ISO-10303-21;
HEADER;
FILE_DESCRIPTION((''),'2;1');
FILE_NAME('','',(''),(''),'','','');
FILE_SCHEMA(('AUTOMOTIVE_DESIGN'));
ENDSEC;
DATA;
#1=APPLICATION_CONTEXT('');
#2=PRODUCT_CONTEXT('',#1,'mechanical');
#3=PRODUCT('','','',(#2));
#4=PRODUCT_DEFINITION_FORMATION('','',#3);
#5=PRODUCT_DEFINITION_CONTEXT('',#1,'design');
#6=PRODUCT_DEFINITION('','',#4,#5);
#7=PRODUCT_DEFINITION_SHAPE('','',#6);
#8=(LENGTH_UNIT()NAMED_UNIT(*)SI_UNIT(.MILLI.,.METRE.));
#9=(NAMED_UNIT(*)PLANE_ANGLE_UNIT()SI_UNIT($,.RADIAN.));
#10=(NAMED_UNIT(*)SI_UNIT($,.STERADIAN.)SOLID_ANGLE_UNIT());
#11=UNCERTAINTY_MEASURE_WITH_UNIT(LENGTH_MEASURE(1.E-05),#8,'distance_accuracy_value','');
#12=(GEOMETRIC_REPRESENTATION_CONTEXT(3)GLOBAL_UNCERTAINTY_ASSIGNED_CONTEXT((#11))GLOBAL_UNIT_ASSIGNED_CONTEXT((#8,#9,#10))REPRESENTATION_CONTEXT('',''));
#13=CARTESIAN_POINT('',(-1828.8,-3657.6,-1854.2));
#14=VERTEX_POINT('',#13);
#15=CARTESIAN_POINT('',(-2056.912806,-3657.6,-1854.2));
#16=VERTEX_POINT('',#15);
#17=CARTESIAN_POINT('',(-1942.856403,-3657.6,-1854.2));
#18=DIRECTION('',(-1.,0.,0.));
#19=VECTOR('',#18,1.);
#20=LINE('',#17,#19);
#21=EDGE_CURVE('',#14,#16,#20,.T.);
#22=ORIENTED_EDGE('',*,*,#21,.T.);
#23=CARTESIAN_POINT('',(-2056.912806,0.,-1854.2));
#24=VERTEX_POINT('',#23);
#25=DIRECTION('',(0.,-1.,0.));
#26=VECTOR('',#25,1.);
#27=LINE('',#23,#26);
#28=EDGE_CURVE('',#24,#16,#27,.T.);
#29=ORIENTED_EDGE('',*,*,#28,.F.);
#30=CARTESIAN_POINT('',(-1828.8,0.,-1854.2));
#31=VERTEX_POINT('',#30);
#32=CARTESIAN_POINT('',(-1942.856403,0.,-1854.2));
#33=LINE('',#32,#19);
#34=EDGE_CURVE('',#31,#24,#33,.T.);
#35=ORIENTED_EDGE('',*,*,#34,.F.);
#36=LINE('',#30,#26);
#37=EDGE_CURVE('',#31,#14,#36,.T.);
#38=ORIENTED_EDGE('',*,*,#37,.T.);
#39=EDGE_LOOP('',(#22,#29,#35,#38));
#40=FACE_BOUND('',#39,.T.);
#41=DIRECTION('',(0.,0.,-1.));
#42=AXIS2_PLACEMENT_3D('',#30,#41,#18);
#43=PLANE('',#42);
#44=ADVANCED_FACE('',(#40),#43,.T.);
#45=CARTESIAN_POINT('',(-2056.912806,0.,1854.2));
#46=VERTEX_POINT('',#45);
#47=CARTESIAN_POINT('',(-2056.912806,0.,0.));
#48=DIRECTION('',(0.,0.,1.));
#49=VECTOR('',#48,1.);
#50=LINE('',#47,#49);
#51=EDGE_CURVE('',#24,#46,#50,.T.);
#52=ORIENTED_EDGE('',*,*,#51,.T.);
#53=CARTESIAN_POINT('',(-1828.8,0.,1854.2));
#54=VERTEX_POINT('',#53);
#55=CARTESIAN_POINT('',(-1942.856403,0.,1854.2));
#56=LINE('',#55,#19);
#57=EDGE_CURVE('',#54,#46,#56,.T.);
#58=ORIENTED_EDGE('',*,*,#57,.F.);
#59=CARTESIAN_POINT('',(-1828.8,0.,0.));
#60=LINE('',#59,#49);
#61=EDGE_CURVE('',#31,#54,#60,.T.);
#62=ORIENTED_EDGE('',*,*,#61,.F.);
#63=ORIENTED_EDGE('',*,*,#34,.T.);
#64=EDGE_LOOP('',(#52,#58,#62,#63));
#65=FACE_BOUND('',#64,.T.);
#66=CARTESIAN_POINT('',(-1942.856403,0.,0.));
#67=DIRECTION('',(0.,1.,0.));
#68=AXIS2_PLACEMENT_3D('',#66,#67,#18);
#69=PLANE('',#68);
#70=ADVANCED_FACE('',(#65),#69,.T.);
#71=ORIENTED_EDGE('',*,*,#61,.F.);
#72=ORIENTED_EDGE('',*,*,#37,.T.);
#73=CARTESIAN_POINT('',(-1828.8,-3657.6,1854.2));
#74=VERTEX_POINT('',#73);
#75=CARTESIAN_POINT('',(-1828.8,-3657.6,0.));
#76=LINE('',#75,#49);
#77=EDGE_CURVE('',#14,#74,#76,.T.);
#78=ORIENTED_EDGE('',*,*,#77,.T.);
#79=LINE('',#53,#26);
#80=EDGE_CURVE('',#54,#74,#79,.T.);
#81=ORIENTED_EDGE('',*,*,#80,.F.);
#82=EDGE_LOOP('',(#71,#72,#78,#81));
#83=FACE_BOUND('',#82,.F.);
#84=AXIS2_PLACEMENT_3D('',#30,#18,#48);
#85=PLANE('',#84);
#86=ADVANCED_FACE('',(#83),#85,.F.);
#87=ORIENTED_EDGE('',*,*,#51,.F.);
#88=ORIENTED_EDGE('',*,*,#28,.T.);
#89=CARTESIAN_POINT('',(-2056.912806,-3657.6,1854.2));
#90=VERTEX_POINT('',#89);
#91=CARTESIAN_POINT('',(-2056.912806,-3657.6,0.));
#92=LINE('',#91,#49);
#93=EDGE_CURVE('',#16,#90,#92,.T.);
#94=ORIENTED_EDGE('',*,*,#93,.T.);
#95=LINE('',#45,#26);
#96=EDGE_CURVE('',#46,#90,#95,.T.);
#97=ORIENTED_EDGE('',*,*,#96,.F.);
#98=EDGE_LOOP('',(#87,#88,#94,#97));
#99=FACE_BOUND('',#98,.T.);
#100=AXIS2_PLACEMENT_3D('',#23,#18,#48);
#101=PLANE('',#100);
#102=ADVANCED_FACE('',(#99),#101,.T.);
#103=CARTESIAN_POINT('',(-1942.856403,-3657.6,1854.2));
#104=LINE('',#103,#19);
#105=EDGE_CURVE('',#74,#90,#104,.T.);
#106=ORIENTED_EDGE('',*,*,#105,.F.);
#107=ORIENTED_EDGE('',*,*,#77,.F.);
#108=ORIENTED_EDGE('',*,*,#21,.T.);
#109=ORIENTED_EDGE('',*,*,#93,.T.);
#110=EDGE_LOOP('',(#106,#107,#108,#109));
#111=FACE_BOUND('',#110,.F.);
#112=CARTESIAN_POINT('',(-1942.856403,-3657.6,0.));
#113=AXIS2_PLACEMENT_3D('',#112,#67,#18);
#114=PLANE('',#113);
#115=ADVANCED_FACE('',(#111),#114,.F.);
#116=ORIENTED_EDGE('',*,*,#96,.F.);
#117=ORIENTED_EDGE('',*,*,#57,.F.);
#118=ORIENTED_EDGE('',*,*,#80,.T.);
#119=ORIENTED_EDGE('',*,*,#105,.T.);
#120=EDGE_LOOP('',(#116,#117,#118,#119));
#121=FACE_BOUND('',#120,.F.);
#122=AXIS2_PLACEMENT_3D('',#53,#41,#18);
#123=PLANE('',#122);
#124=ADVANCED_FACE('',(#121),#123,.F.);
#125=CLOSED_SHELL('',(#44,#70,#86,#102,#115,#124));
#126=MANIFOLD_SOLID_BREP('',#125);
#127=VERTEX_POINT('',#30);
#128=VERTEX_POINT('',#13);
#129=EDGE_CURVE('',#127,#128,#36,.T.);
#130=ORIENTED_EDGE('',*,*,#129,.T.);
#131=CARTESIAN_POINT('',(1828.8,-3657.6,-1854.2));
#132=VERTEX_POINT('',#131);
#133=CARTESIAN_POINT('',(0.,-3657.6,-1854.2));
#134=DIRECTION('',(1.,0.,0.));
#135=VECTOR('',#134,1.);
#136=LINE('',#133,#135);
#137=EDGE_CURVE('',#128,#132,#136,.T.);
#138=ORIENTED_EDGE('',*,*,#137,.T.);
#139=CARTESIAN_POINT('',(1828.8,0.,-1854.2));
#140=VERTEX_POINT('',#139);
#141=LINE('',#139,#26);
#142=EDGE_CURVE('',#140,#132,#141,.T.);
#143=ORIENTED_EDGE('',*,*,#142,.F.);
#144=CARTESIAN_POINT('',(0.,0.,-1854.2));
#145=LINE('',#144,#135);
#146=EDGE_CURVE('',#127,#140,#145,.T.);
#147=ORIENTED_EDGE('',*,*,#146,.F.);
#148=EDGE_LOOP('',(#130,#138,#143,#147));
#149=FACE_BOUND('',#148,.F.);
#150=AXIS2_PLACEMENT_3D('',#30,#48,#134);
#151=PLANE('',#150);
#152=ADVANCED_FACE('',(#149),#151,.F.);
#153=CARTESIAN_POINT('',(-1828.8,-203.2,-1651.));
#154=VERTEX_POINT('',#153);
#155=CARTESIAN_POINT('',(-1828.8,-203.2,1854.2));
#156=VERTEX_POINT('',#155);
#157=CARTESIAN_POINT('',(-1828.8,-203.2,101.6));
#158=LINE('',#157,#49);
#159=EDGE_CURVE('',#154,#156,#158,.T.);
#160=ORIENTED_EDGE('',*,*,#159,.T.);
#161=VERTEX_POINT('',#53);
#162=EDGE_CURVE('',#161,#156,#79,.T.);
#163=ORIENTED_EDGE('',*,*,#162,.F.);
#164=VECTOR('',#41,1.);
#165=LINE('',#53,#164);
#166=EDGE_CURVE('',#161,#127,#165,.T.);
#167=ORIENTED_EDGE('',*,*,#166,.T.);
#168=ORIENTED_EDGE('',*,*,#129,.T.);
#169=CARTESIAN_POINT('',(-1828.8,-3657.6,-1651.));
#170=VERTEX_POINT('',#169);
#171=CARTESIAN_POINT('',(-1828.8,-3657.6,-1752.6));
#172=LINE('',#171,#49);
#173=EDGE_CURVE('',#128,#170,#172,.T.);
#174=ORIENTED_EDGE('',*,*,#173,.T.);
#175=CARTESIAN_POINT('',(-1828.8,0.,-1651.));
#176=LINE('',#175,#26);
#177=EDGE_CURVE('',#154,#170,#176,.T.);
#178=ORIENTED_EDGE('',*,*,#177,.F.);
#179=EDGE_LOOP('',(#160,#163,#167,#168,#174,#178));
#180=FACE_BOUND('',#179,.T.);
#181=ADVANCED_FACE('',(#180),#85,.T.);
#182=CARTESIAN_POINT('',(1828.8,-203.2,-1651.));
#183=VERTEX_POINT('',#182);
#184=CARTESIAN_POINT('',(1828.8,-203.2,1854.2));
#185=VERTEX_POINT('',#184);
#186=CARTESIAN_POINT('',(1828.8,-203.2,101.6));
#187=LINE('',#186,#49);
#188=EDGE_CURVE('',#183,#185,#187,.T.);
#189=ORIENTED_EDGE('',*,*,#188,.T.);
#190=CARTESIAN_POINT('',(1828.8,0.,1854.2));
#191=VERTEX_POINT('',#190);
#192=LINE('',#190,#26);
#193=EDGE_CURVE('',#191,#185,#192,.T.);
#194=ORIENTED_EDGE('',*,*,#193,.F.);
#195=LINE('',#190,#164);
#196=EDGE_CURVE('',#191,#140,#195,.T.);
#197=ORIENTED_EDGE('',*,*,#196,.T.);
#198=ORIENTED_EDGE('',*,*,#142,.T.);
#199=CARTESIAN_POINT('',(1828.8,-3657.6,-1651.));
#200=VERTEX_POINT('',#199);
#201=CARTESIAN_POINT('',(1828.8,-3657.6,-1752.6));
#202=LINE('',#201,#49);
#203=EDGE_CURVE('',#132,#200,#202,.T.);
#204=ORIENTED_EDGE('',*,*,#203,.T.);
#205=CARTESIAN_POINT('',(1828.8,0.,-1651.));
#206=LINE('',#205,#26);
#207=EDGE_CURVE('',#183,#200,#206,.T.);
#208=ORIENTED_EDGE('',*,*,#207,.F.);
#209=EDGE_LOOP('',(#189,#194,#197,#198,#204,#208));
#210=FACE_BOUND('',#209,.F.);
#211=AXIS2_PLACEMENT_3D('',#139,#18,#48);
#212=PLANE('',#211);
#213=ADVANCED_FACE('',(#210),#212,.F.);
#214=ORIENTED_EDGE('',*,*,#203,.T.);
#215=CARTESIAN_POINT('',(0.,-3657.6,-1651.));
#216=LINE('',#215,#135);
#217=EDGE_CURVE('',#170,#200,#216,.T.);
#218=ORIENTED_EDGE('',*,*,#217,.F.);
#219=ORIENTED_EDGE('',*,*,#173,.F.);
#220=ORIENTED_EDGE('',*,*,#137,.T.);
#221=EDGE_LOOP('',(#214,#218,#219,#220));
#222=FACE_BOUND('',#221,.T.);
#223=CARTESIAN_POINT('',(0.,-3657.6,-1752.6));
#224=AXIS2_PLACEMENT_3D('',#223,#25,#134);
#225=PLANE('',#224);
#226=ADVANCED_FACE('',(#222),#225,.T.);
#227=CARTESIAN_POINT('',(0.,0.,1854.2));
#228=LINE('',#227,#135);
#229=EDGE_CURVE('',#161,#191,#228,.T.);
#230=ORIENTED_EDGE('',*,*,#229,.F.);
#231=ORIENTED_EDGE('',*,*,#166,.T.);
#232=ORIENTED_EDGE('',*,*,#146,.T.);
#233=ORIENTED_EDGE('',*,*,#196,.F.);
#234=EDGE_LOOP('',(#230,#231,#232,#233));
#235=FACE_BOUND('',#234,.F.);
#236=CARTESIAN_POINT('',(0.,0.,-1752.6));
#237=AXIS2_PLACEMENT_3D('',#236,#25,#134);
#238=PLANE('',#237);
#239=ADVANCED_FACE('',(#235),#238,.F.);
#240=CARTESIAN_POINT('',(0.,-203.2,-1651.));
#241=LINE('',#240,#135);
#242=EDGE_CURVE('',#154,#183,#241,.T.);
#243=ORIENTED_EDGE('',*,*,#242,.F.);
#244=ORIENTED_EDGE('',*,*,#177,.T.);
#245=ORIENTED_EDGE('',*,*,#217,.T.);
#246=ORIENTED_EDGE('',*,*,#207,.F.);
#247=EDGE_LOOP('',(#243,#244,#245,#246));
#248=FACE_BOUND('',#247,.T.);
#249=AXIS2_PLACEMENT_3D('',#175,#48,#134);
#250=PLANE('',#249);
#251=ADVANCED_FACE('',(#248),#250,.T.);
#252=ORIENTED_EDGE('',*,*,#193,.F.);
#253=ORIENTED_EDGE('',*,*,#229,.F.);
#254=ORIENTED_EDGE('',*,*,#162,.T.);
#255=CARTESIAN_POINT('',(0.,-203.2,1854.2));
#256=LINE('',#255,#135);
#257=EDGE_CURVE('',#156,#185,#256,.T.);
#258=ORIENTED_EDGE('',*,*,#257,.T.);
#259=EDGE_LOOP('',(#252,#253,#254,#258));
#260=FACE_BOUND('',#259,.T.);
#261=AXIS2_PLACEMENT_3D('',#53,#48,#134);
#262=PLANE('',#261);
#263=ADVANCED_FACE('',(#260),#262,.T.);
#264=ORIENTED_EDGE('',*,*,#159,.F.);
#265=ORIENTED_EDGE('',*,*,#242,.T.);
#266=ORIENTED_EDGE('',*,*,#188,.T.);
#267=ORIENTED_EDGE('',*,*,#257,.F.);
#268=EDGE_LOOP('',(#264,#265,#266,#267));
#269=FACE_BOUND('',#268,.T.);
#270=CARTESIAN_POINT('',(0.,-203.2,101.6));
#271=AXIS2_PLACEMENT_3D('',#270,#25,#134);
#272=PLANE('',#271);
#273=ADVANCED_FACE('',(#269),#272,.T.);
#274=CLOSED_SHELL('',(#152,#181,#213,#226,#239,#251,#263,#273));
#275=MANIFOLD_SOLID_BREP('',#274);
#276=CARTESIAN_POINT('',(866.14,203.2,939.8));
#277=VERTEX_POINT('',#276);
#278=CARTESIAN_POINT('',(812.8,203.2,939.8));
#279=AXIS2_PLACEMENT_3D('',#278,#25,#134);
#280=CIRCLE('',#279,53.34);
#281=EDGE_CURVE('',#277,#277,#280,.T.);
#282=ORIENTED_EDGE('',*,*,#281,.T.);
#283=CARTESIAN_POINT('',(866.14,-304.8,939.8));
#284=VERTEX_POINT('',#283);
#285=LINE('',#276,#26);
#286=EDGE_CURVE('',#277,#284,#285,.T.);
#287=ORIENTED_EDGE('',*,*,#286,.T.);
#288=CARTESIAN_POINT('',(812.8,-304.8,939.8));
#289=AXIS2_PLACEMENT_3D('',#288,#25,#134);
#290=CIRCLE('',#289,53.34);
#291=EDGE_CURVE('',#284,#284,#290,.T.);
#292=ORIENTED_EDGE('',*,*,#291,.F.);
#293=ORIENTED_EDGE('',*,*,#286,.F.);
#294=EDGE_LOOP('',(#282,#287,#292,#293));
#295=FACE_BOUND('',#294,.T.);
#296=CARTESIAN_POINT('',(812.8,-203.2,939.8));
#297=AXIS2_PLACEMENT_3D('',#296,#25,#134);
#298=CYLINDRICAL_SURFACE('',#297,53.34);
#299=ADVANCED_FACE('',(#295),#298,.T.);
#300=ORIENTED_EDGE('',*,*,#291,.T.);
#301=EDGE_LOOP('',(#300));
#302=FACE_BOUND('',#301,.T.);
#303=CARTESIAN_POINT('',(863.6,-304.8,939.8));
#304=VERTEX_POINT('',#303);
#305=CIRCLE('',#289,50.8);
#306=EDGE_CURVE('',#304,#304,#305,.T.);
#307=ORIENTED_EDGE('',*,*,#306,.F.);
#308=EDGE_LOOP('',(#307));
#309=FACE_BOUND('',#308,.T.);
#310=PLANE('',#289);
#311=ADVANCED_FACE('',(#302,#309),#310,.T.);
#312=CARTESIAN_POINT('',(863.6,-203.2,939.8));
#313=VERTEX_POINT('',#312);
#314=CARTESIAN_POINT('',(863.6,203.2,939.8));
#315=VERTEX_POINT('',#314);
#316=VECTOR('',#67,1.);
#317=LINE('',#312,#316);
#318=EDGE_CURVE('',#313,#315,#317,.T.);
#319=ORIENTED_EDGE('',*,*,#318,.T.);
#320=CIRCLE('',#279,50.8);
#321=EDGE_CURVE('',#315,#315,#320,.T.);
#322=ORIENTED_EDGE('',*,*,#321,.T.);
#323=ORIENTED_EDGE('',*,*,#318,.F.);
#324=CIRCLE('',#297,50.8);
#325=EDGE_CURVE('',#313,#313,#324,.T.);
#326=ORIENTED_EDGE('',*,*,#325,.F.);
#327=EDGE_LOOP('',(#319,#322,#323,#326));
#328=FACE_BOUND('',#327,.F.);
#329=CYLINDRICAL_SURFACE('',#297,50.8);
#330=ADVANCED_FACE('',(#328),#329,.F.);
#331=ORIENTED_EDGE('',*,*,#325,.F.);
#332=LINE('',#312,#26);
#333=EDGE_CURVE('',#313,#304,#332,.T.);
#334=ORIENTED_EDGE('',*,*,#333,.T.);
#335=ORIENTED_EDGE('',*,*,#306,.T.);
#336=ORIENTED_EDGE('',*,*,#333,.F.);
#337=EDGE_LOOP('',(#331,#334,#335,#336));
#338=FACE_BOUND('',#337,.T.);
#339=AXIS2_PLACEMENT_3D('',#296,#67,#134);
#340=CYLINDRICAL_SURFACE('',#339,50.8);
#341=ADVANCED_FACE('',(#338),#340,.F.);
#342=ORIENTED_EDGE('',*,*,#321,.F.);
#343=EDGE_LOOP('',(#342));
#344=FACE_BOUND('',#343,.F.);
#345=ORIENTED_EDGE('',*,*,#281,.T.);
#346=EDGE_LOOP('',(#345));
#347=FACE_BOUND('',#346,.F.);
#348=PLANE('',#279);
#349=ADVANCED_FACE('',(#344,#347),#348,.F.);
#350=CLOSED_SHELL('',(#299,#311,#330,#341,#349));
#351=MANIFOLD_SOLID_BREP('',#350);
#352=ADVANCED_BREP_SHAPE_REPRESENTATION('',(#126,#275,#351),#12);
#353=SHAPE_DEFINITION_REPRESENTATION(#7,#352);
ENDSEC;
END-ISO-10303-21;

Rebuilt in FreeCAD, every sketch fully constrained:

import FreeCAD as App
import Part
import Sketcher
from FreeCAD import Vector
Q = App.Units.Quantity


def add_polygon(sketch, points):
    """Adds a closed chain of lines whose ends are joined by coincident constraints."""
    first, n = sketch.GeometryCount, len(points)
    for a, b in zip(points, points[1:] + points[:1]):
        sketch.addGeometry(Part.LineSegment(App.Vector(*a, 0), App.Vector(*b, 0)), False)
    for i in range(n):
        sketch.addConstraint(Sketcher.Constraint("Coincident", first + i, 2, first + (i + 1) % n, 1))

doc = App.newDocument("Part")
body = doc.addObject("PartDesign::Body", "Body")

# Sketch on XZ plane
sketch1 = doc.addObject("Sketcher::SketchObject", "Sketch")
body.addObject(sketch1)
sketch1.AttachmentSupport = (doc.XZ_Plane, [""])
sketch1.MapMode = "FlatFace"
add_polygon(sketch1, [(-1828.8, 1854.2), (-1828.8, -1651), (1828.8, -1651), (1828.8, 1854.2)])  # lines 0-3
sketch1.addConstraint([
    Sketcher.Constraint("Vertical", 0),
    Sketcher.Constraint("Horizontal", 1),
    Sketcher.Constraint("Vertical", 2),
    Sketcher.Constraint("Horizontal", 3),
    Sketcher.Constraint("DistanceX", 1, 1, 1, 2, Q("144 in")),
    Sketcher.Constraint("DistanceY", 0, 2, 0, 1, Q("138 in")),
    Sketcher.Constraint("DistanceX", 0, 2, -1, 1, Q("72 in")),
    Sketcher.Constraint("DistanceY", 0, 2, -1, 1, Q("65 in")),
])
pad1 = doc.addObject("PartDesign::Pad", "Pad")
body.addObject(pad1)
pad1.Profile = sketch1
pad1.Length = Q("8 in")

# Sketch on XZ plane
sketch2 = doc.addObject("Sketcher::SketchObject", "Sketch001")
body.addObject(sketch2)
sketch2.AttachmentSupport = (doc.XZ_Plane, [""])
sketch2.MapMode = "FlatFace"
add_polygon(sketch2, [(-1828.8, -1651), (-1828.8, -1854.2), (1828.8, -1854.2), (1828.8, -1651)])  # lines 0-3
sketch2.addConstraint([
    Sketcher.Constraint("Vertical", 0),
    Sketcher.Constraint("Horizontal", 1),
    Sketcher.Constraint("Vertical", 2),
    Sketcher.Constraint("Horizontal", 3),
    Sketcher.Constraint("DistanceX", 1, 1, 1, 2, Q("144 in")),
    Sketcher.Constraint("DistanceY", 0, 2, 0, 1, Q("8 in")),
    Sketcher.Constraint("DistanceX", 0, 2, -1, 1, Q("72 in")),
    Sketcher.Constraint("DistanceY", 0, 2, -1, 1, Q("73 in")),
])
pad2 = doc.addObject("PartDesign::Pad", "Pad001")
body.addObject(pad2)
pad2.Profile = sketch2
pad2.Length = Q("144 in")
body2 = doc.addObject("PartDesign::Body", "Body001")

# Sketch on XZ plane
sketch3 = doc.addObject("Sketcher::SketchObject", "Sketch002")
body2.addObject(sketch3)
sketch3.AttachmentSupport = (doc.getObject("XZ_Plane001"), [""])
sketch3.MapMode = "FlatFace"
add_polygon(sketch3, [(-1828.8, 1854.2), (-1828.8, -1854.2), (-2056.912806, -1854.2), (-2056.912806, 1854.2)])  # lines 0-3
sketch3.addConstraint([
    Sketcher.Constraint("Vertical", 0),
    Sketcher.Constraint("Horizontal", 1),
    Sketcher.Constraint("Vertical", 2),
    Sketcher.Constraint("Horizontal", 3),
    Sketcher.Constraint("DistanceY", 0, 2, 0, 1, Q("146 in")),
    Sketcher.Constraint("DistanceX", 0, 2, -1, 1, Q("72 in")),
    Sketcher.Constraint("DistanceY", 0, 2, -1, 1, Q("73 in")),
    Sketcher.Constraint("DistanceX", 1, 2, 1, 1, 228.112806),
])
pad3 = doc.addObject("PartDesign::Pad", "Pad002")
body2.addObject(pad3)
pad3.Profile = sketch3
pad3.Length = Q("144 in")
body3 = doc.addObject("PartDesign::Body", "Body002")

# Sketch on XZ plane
sketch4 = doc.addObject("Sketcher::SketchObject", "Sketch003")
body3.addObject(sketch4)
sketch4.AttachmentSupport = (doc.getObject("XZ_Plane002"), [""])
sketch4.MapMode = "FlatFace"
sketch4.AttachmentOffset = App.Placement(Vector(0, 0, 8 * 25.4), App.Rotation())
sketch4.addGeometry([
    Part.Circle(Vector(812.8, 939.8, 0), Vector(0, 0, 1), 53.34),
    Part.Circle(Vector(812.8, 939.8, 0), Vector(0, 0, 1), 50.8),
], False)
sketch4.addConstraint([
    Sketcher.Constraint("Coincident", 1, 3, 0, 3),
    Sketcher.Constraint("Diameter", 1, Q("4 in")),
    Sketcher.Constraint("Diameter", 0, Q("4.2 in")),
    Sketcher.Constraint("DistanceX", -1, 1, 0, 3, Q("32 in")),
    Sketcher.Constraint("DistanceY", -1, 1, 0, 3, Q("37 in")),
])
pad4 = doc.addObject("PartDesign::Pad", "Pad003")
body3.addObject(pad4)
pad4.Profile = sketch4
pad4.Length = Q("4 in")

# Sketch on XZ plane
sketch5 = doc.addObject("Sketcher::SketchObject", "Sketch004")
body3.addObject(sketch5)
sketch5.AttachmentSupport = (doc.getObject("XZ_Plane002"), [""])
sketch5.MapMode = "FlatFace"
sketch5.AttachmentOffset = App.Placement(Vector(0, 0, 8 * 25.4), App.Rotation())
sketch5.addGeometry([
    Part.Circle(Vector(812.8, 939.8, 0), Vector(0, 0, 1), 53.34),
    Part.Circle(Vector(812.8, 939.8, 0), Vector(0, 0, 1), 50.8),
], False)
sketch5.addConstraint([
    Sketcher.Constraint("Coincident", 1, 3, 0, 3),
    Sketcher.Constraint("Diameter", 1, Q("4 in")),
    Sketcher.Constraint("Diameter", 0, Q("4.2 in")),
    Sketcher.Constraint("DistanceX", -1, 1, 0, 3, Q("32 in")),
    Sketcher.Constraint("DistanceY", -1, 1, 0, 3, Q("37 in")),
])
pad5 = doc.addObject("PartDesign::Pad", "Pad004")
body3.addObject(pad5)
pad5.Profile = sketch5
pad5.Length = Q("16 in")
pad5.Reversed = True

doc.recompute()
